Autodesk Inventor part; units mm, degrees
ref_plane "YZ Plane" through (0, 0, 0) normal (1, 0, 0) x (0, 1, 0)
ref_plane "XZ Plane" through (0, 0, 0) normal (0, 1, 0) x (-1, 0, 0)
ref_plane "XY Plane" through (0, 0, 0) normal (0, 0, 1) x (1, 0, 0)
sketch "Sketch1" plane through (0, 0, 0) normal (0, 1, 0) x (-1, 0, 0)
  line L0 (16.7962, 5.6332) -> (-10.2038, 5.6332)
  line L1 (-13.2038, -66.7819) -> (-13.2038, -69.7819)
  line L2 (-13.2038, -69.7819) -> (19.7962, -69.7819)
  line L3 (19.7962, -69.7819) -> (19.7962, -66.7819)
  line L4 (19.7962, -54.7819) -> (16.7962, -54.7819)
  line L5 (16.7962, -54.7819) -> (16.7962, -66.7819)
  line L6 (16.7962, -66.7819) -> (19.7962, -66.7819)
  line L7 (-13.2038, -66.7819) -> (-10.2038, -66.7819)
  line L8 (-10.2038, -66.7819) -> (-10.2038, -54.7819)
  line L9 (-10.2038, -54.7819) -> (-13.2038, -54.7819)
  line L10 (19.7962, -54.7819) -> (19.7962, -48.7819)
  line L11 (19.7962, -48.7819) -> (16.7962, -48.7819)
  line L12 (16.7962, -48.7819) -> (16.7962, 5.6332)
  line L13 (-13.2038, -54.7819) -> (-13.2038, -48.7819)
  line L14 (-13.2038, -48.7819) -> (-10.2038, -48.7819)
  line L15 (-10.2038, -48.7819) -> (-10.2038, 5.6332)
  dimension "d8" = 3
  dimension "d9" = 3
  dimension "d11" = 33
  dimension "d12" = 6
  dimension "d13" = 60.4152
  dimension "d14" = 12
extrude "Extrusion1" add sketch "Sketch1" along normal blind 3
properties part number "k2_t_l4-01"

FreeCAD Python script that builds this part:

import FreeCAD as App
import Part
import Sketcher

V = App.Vector


def add_polygon(sketch, points):
    """Adds a closed chain of lines whose ends are joined by coincident constraints."""
    first, n = sketch.GeometryCount, len(points)
    for a, b in zip(points, points[1:] + points[:1]):
        sketch.addGeometry(Part.LineSegment(App.Vector(*a, 0), App.Vector(*b, 0)), False)
    for i in range(n):
        sketch.addConstraint(Sketcher.Constraint("Coincident", first + i, 2, first + (i + 1) % n, 1))

doc = App.newDocument("Part")
body = doc.addObject("PartDesign::Body", "Body")

sketch1 = body.newObject("Sketcher::SketchObject", "Sketch")
sketch1.AttachmentSupport = (doc.getObject("XZ_Plane"), [""])
sketch1.MapMode = "FlatFace"
add_polygon(sketch1, [(-16.8, -48.8), (-16.8, 5.6), (10.2, 5.6), (10.2, -48.8), (13.2, -48.8), (13.2, -54.8), (10.2, -54.8), (10.2, -66.8), (13.2, -66.8), (13.2, -69.8), (-19.8, -69.8), (-19.8, -66.8), (-16.8, -66.8), (-16.8, -54.8), (-19.8, -54.8), (-19.8, -48.8)])
sketch1.addConstraint([
    Sketcher.Constraint("Vertical", 0),
    Sketcher.Constraint("Horizontal", 1),
    Sketcher.Constraint("Vertical", 2),
    Sketcher.Constraint("Horizontal", 3),
    Sketcher.Constraint("Vertical", 4),
    Sketcher.Constraint("Horizontal", 5),
    Sketcher.Constraint("Vertical", 6),
    Sketcher.Constraint("Horizontal", 7),
    Sketcher.Constraint("Vertical", 8),
    Sketcher.Constraint("Horizontal", 9),
    Sketcher.Constraint("Vertical", 10),
    Sketcher.Constraint("Horizontal", 11),
    Sketcher.Constraint("Vertical", 12),
    Sketcher.Constraint("Horizontal", 13),
    Sketcher.Constraint("Vertical", 14),
    Sketcher.Constraint("Horizontal", 15),
    Sketcher.Constraint("Horizontal", 7, 2, 10, 2),
    Sketcher.Constraint("Horizontal", 5, 2, 12, 2),
    Sketcher.Constraint("Horizontal", 3, 2, 14, 2),
    Sketcher.Constraint("Vertical", 2, 2, 5, 2),
    Sketcher.Constraint("Vertical", 4, 2, 7, 2),
    Sketcher.Constraint("Vertical", 0, 2, 11, 2),
    Sketcher.Constraint("Vertical", 10, 2, 13, 2),
    Sketcher.Constraint("Equal", 7, 11),
    Sketcher.Constraint("Equal", 15, 8),
    Sketcher.Constraint("DistanceX", 3, 1, 3, 2, 3.0),
    Sketcher.Constraint("DistanceX", 9, 2, 9, 1, 33.0),
    Sketcher.Constraint("DistanceY", 4, 2, 4, 1, 6.0),
    Sketcher.Constraint("DistanceY", 6, 2, 6, 1, 12.0),
    Sketcher.Constraint("DistanceY", 4, 2, 1, 2, 60.415),
    Sketcher.Constraint("DistanceY", 2, 2, -1, 1, 48.782),
    Sketcher.Constraint("DistanceX", 0, 2, -1, 1, 16.7962),
])
pad1 = body.newObject("PartDesign::Pad", "Pad")
pad1.Profile = sketch1
pad1.Length = 3
pad1.Reversed = True

doc.recompute()
